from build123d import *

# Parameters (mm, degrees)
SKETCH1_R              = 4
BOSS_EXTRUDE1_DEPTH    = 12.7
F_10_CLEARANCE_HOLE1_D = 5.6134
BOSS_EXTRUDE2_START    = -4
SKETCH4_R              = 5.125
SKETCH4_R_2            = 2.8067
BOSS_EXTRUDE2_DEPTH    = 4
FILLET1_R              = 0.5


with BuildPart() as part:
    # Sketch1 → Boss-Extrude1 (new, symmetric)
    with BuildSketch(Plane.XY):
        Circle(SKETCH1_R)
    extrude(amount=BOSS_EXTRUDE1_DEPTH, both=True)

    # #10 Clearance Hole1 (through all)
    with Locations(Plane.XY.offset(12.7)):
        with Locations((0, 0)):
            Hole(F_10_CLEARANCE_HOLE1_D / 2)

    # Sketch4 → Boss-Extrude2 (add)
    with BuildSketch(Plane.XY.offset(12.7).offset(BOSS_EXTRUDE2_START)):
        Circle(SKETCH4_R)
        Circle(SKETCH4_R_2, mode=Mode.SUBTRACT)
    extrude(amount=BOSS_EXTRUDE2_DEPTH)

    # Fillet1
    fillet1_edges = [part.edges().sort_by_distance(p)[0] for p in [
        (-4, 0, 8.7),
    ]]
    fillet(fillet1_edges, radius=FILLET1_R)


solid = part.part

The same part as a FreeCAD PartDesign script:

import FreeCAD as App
import Part
import Sketcher

V = App.Vector
Q = App.Units.Quantity


def edges_at(feature, points):
    """Names of the edges that pass closest to the given points."""
    edges = feature.Shape.Edges
    near = lambda p: min(range(len(edges)), key=lambda i: edges[i].distToShape(Part.Vertex(*p))[0])
    return sorted({f"Edge{near(p) + 1}" for p in points})

doc = App.newDocument("Part")
body = doc.addObject("PartDesign::Body", "Body")

# Sketch on XY plane
sketch1 = body.newObject("Sketcher::SketchObject", "Sketch")
sketch1.AttachmentSupport = (doc.getObject("XY_Plane"), [""])
sketch1.MapMode = "FlatFace"
sketch1.addGeometry(Part.Circle(V(0, 0, 0), V(0, 0, 1), 4), False)
sketch1.addConstraint([
    Sketcher.Constraint("Coincident", 0, 3, -1, 1),
    Sketcher.Constraint("Diameter", 0, Q("8 mm")),
])
pad1 = body.newObject("PartDesign::Pad", "Pad")
pad1.Profile = sketch1
pad1.Length = 25.4
pad1.Midplane = True

# Sketch on XY plane
sketch2 = body.newObject("Sketcher::SketchObject", "Sketch001")
sketch2.AttachmentSupport = (doc.getObject("XY_Plane"), [""])
sketch2.MapMode = "FlatFace"
sketch2.AttachmentOffset = App.Placement(V(0, 0, 12.7), App.Rotation())
sketch2.addGeometry(Part.Circle(V(0, 0, 0), V(0, 0, 1), 2.8067), False)
sketch2.addConstraint([
    Sketcher.Constraint("Coincident", 0, 3, -1, 1),
    Sketcher.Constraint("Diameter", 0, Q("5.6134 mm")),
])
doc.recompute()
hole = body.newObject("PartDesign::Hole", "Hole")
hole.Profile = sketch2
hole.ThreadType = "None"
hole.Diameter = 5.6134
hole.DepthType = "ThroughAll"

# Sketch on XY plane
sketch3 = body.newObject("Sketcher::SketchObject", "Sketch002")
sketch3.AttachmentSupport = (doc.getObject("XY_Plane"), [""])
sketch3.MapMode = "FlatFace"
sketch3.AttachmentOffset = App.Placement(V(0, 0, 8.7), App.Rotation())
sketch3.addGeometry([
    Part.Circle(V(0, 0, 0), V(0, 0, 1), 5.125),
    Part.Circle(V(0, 0, 0), V(0, 0, 1), 2.8067),
], False)
sketch3.addConstraint([
    Sketcher.Constraint("Coincident", 0, 3, -1, 1),
    Sketcher.Constraint("Coincident", 1, 3, -1, 1),
    Sketcher.Constraint("Diameter", 0, Q("10.25 mm")),
    Sketcher.Constraint("Diameter", 1, Q("5.6134 mm")),
])
pad2 = body.newObject("PartDesign::Pad", "Pad001")
pad2.Profile = sketch3
pad2.Length = 4
doc.recompute()

fillet = body.newObject("PartDesign::Fillet", "Fillet")
fillet.Base = (pad2, edges_at(pad2, [(-4, 0, 8.7)]))
fillet.Radius = 0.5

doc.recompute()
